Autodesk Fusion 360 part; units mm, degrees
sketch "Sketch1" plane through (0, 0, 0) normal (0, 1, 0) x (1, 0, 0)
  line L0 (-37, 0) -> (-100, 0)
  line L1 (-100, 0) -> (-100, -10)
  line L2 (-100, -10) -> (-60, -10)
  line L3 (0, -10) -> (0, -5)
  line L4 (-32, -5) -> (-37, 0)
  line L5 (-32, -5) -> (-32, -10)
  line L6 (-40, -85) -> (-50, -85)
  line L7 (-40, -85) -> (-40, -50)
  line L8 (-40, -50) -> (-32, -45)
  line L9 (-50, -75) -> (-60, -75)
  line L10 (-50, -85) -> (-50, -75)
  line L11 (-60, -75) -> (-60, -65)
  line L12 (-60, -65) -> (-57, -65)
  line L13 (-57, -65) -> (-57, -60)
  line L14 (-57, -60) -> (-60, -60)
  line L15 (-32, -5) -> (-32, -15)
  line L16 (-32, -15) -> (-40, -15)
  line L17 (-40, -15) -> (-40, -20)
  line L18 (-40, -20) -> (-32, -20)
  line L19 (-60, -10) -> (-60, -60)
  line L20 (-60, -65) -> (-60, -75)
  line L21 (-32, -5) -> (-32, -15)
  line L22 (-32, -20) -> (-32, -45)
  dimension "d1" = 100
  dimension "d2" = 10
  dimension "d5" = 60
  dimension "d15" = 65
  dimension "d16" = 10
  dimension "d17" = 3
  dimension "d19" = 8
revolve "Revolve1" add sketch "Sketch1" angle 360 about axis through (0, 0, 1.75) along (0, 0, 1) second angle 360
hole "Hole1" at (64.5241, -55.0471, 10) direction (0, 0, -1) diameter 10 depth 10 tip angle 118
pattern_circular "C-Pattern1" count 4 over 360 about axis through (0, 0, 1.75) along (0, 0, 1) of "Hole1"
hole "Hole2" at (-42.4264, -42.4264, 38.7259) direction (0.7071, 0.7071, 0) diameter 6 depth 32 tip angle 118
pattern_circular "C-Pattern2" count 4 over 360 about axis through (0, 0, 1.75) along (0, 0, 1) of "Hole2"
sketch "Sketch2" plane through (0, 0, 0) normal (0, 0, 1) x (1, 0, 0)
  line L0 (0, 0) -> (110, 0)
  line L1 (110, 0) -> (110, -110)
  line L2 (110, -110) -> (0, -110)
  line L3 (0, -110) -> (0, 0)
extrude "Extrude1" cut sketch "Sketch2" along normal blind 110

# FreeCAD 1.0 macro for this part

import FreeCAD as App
import Part
import Sketcher
from FreeCAD import Vector
Q = App.Units.Quantity


def add_polygon(sketch, points):
    """Adds a closed chain of lines whose ends are joined by coincident constraints."""
    first, n = sketch.GeometryCount, len(points)
    for a, b in zip(points, points[1:] + points[:1]):
        sketch.addGeometry(Part.LineSegment(App.Vector(*a, 0), App.Vector(*b, 0)), False)
    for i in range(n):
        sketch.addConstraint(Sketcher.Constraint("Coincident", first + i, 2, first + (i + 1) % n, 1))

doc = App.newDocument("Part")
params = doc.addObject("Spreadsheet::Sheet", "Params")
for row, (alias, value) in enumerate([
    ("sketch1_width", "3 mm"),
    ("sketch1_width2", "10 mm"),
    ("sketch1_width3", "8 mm"),
    ("sketch1_height", "25 mm"),
    ("revolution_angle", "360 deg"),
    ("sketch2_diameter", "10 mm"),
    ("hole_diameter", "10 mm"),
    ("hole_depth", "10 mm"),
    ("sketch3_diameter", "6 mm"),
    ("hole2_diameter", "6 mm"),
    ("hole2_depth", "32 mm"),
    ("sketch4_width", "110 mm"),
    ("pocket1_length", "110 mm"),
], start=1):
    params.set(f"A{row}", alias)
    params.set(f"B{row}", "=" + value)
    params.setAlias(f"B{row}", alias)

body = doc.addObject("PartDesign::Body", "Body")

# Sketch on XZ plane
sketch1 = body.newObject("Sketcher::SketchObject", "Sketch")
sketch1.AttachmentSupport = (doc.getObject("XZ_Plane"), [""])
sketch1.MapMode = "FlatFace"
add_polygon(sketch1, [(-32, 5), (-37, 0), (-100, 0), (-100, 10), (-60, 10), (-60, 60), (-57, 60), (-57, 65), (-60, 65), (-60, 75), (-50, 75), (-50, 85), (-40, 85), (-40, 50), (-32, 45), (-32, 20), (-40, 20), (-40, 15), (-32, 15)])  # lines 0-18
sketch1.addConstraint(Sketcher.Constraint("Horizontal", 1))
sketch1.addConstraint(Sketcher.Constraint("Vertical", 2))
sketch1.addConstraint(Sketcher.Constraint("Horizontal", 3))
sketch1.addConstraint(Sketcher.Constraint("Vertical", 4))
sketch1.addConstraint(Sketcher.Constraint("Horizontal", 5))
sketch1.addConstraint(Sketcher.Constraint("Vertical", 6))
sketch1.addConstraint(Sketcher.Constraint("Horizontal", 7))
sketch1.addConstraint(Sketcher.Constraint("Vertical", 8))
sketch1.addConstraint(Sketcher.Constraint("Horizontal", 9))
sketch1.addConstraint(Sketcher.Constraint("Vertical", 10))
sketch1.addConstraint(Sketcher.Constraint("Horizontal", 11))
sketch1.addConstraint(Sketcher.Constraint("Vertical", 12))
sketch1.addConstraint(Sketcher.Constraint("Vertical", 14))
sketch1.addConstraint(Sketcher.Constraint("Horizontal", 15))
sketch1.addConstraint(Sketcher.Constraint("Vertical", 16))
sketch1.addConstraint(Sketcher.Constraint("Horizontal", 17))
sketch1.addConstraint(Sketcher.Constraint("Vertical", 18))
sketch1.addConstraint(Sketcher.Constraint("PointOnObject", 0, 2, -1))
sketch1.addConstraint(Sketcher.Constraint("Vertical", 4, 2, 7, 2))
sketch1.addConstraint(Sketcher.Constraint("Vertical", 12, 2, 15, 2))
sketch1.addConstraint(Sketcher.Constraint("Vertical", 14, 2, 17, 2))
sketch1.addConstraint(Sketcher.Constraint("Equal", 9, 11))
sketch1.addConstraint(Sketcher.Constraint("Equal", 11, 2))
sketch1.addConstraint(Sketcher.Constraint("Equal", 2, 8))
sketch1.addConstraint(Sketcher.Constraint("Equal", 8, 10))
sketch1.addConstraint(Sketcher.Constraint("Equal", 6, 16))
sketch1.addConstraint(Sketcher.Constraint("Equal", 10, 18))
sketch1.addConstraint(Sketcher.Constraint("DistanceX", 5, 1, 5, 2, Q("3 mm")))
sketch1.addConstraint(Sketcher.Constraint("DistanceX", 9, 1, 9, 2, Q("10 mm")))
sketch1.addConstraint(Sketcher.Constraint("DistanceX", 15, 2, 15, 1, Q("8 mm")))
sketch1.addConstraint(Sketcher.Constraint("DistanceX", 1, 2, -1, 1, Q("100 mm")))
sketch1.addConstraint(Sketcher.Constraint("DistanceX", 3, 2, -1, 1, Q("60 mm")))
sketch1.addConstraint(Sketcher.Constraint("DistanceY", -1, 1, 4, 2, Q("60 mm")))
sketch1.addConstraint(Sketcher.Constraint("DistanceY", -1, 1, 6, 2, Q("65 mm")))
sketch1.addConstraint(Sketcher.Constraint("DistanceY", 12, 2, 5, 2, Q("10 mm")))
sketch1.addConstraint(Sketcher.Constraint("DistanceY", 3, 2, 14, 2, Q("10 mm")))
sketch1.addConstraint(Sketcher.Constraint("DistanceX", 15, 2, 0, 2, Q("3 mm")))
sketch1.addConstraint(Sketcher.Constraint("DistanceY", 14, 2, 14, 1, Q("25 mm")))
sketch1.setExpression("Constraints[46]", "Params.sketch1_width")
sketch1.setExpression("Constraints[47]", "Params.sketch1_width2")
sketch1.setExpression("Constraints[48]", "Params.sketch1_width3")
sketch1.setExpression("Constraints[56]", "Params.sketch1_height")
revolution = body.newObject("PartDesign::Revolution", "Revolution")
revolution.Profile = sketch1
revolution.ReferenceAxis = (sketch1, ["V_Axis"])
revolution.setExpression("Angle", "Params.revolution_angle")

# Sketch on XY plane
sketch2 = body.newObject("Sketcher::SketchObject", "Sketch001")
sketch2.AttachmentSupport = (doc.getObject("XY_Plane"), [""])
sketch2.MapMode = "FlatFace"
sketch2.AttachmentOffset = App.Placement(Vector(0, 0, 10), App.Rotation())
sketch2.addGeometry(Part.Circle(Vector(65, -55, 0), Vector(0, 0, 1), 5), False)
sketch2.addConstraint(Sketcher.Constraint("Diameter", 0, Q("10 mm")))
sketch2.addConstraint(Sketcher.Constraint("DistanceX", -1, 1, 0, 3, Q("64.524 mm")))
sketch2.addConstraint(Sketcher.Constraint("DistanceY", 0, 3, -1, 1, Q("55.047 mm")))
sketch2.setExpression("Constraints[0]", "Params.sketch2_diameter")
doc.recompute()
hole = body.newObject("PartDesign::Hole", "Hole")
hole.Profile = sketch2
hole.ThreadType = "None"
hole.setExpression("Diameter", "Params.hole_diameter")
hole.DepthType = "Dimension"
hole.setExpression("Depth", "Params.hole_depth")
hole.DrillPoint = "Angled"
hole.DrillPointAngle = 118
doc.recompute()

polarpattern = body.newObject("PartDesign::PolarPattern", "PolarPattern")
polarpattern.Originals = [hole]
polarpattern.Axis = (doc.getObject("Z_Axis"), [""])
polarpattern.Angle = 360
polarpattern.Occurrences = 4
body.Tip = polarpattern

# Sketch on an angled plane
sketch3 = body.newObject("Sketcher::SketchObject", "Sketch002")
sketch3.Placement = App.Placement(Vector(-42.4264, -42.4264, 0), App.Rotation(Vector(0.707106781, -0.707106781, 0), Vector(0, 0, 0.999999999), Vector(-0.707106781, -0.707106781, 0), "ZXY"))
sketch3.addGeometry(Part.Circle(Vector(0, 38.7, 0), Vector(0, 0, 1), 3), False)
sketch3.addConstraint(Sketcher.Constraint("PointOnObject", 0, 3, -2))
sketch3.addConstraint(Sketcher.Constraint("Diameter", 0, Q("6 mm")))
sketch3.addConstraint(Sketcher.Constraint("DistanceY", -1, 1, 0, 3, Q("38.726 mm")))
sketch3.setExpression("Constraints[1]", "Params.sketch3_diameter")
doc.recompute()
hole2 = body.newObject("PartDesign::Hole", "Hole001")
hole2.Profile = sketch3
hole2.ThreadType = "None"
hole2.setExpression("Diameter", "Params.hole2_diameter")
hole2.DepthType = "Dimension"
hole2.setExpression("Depth", "Params.hole2_depth")
hole2.DrillPoint = "Angled"
hole2.DrillPointAngle = 118
doc.recompute()

polarpattern2 = body.newObject("PartDesign::PolarPattern", "PolarPattern001")
polarpattern2.Originals = [hole2]
polarpattern2.Axis = (doc.getObject("Z_Axis"), [""])
polarpattern2.Angle = 360
polarpattern2.Occurrences = 4
body.Tip = polarpattern2

# Sketch on XY plane
sketch4 = body.newObject("Sketcher::SketchObject", "Sketch003")
sketch4.AttachmentSupport = (doc.getObject("XY_Plane"), [""])
sketch4.MapMode = "FlatFace"
add_polygon(sketch4, [(110, 0), (0, 0), (0, -110), (110, -110)])  # lines 0-3
sketch4.addConstraint(Sketcher.Constraint("Horizontal", 0))
sketch4.addConstraint(Sketcher.Constraint("Vertical", 1))
sketch4.addConstraint(Sketcher.Constraint("Horizontal", 2))
sketch4.addConstraint(Sketcher.Constraint("Vertical", 3))
sketch4.addConstraint(Sketcher.Constraint("Coincident", 0, 2, -1, 1))
sketch4.addConstraint(Sketcher.Constraint("Equal", 2, 1))
sketch4.addConstraint(Sketcher.Constraint("DistanceX", 0, 2, 0, 1, Q("110 mm")))
sketch4.setExpression("Constraints[10]", "Params.sketch4_width")
pocket1 = body.newObject("PartDesign::Pocket", "Pocket")
pocket1.Profile = sketch4
pocket1.setExpression("Length", "Params.pocket1_length")
pocket1.Reversed = True

doc.recompute()
